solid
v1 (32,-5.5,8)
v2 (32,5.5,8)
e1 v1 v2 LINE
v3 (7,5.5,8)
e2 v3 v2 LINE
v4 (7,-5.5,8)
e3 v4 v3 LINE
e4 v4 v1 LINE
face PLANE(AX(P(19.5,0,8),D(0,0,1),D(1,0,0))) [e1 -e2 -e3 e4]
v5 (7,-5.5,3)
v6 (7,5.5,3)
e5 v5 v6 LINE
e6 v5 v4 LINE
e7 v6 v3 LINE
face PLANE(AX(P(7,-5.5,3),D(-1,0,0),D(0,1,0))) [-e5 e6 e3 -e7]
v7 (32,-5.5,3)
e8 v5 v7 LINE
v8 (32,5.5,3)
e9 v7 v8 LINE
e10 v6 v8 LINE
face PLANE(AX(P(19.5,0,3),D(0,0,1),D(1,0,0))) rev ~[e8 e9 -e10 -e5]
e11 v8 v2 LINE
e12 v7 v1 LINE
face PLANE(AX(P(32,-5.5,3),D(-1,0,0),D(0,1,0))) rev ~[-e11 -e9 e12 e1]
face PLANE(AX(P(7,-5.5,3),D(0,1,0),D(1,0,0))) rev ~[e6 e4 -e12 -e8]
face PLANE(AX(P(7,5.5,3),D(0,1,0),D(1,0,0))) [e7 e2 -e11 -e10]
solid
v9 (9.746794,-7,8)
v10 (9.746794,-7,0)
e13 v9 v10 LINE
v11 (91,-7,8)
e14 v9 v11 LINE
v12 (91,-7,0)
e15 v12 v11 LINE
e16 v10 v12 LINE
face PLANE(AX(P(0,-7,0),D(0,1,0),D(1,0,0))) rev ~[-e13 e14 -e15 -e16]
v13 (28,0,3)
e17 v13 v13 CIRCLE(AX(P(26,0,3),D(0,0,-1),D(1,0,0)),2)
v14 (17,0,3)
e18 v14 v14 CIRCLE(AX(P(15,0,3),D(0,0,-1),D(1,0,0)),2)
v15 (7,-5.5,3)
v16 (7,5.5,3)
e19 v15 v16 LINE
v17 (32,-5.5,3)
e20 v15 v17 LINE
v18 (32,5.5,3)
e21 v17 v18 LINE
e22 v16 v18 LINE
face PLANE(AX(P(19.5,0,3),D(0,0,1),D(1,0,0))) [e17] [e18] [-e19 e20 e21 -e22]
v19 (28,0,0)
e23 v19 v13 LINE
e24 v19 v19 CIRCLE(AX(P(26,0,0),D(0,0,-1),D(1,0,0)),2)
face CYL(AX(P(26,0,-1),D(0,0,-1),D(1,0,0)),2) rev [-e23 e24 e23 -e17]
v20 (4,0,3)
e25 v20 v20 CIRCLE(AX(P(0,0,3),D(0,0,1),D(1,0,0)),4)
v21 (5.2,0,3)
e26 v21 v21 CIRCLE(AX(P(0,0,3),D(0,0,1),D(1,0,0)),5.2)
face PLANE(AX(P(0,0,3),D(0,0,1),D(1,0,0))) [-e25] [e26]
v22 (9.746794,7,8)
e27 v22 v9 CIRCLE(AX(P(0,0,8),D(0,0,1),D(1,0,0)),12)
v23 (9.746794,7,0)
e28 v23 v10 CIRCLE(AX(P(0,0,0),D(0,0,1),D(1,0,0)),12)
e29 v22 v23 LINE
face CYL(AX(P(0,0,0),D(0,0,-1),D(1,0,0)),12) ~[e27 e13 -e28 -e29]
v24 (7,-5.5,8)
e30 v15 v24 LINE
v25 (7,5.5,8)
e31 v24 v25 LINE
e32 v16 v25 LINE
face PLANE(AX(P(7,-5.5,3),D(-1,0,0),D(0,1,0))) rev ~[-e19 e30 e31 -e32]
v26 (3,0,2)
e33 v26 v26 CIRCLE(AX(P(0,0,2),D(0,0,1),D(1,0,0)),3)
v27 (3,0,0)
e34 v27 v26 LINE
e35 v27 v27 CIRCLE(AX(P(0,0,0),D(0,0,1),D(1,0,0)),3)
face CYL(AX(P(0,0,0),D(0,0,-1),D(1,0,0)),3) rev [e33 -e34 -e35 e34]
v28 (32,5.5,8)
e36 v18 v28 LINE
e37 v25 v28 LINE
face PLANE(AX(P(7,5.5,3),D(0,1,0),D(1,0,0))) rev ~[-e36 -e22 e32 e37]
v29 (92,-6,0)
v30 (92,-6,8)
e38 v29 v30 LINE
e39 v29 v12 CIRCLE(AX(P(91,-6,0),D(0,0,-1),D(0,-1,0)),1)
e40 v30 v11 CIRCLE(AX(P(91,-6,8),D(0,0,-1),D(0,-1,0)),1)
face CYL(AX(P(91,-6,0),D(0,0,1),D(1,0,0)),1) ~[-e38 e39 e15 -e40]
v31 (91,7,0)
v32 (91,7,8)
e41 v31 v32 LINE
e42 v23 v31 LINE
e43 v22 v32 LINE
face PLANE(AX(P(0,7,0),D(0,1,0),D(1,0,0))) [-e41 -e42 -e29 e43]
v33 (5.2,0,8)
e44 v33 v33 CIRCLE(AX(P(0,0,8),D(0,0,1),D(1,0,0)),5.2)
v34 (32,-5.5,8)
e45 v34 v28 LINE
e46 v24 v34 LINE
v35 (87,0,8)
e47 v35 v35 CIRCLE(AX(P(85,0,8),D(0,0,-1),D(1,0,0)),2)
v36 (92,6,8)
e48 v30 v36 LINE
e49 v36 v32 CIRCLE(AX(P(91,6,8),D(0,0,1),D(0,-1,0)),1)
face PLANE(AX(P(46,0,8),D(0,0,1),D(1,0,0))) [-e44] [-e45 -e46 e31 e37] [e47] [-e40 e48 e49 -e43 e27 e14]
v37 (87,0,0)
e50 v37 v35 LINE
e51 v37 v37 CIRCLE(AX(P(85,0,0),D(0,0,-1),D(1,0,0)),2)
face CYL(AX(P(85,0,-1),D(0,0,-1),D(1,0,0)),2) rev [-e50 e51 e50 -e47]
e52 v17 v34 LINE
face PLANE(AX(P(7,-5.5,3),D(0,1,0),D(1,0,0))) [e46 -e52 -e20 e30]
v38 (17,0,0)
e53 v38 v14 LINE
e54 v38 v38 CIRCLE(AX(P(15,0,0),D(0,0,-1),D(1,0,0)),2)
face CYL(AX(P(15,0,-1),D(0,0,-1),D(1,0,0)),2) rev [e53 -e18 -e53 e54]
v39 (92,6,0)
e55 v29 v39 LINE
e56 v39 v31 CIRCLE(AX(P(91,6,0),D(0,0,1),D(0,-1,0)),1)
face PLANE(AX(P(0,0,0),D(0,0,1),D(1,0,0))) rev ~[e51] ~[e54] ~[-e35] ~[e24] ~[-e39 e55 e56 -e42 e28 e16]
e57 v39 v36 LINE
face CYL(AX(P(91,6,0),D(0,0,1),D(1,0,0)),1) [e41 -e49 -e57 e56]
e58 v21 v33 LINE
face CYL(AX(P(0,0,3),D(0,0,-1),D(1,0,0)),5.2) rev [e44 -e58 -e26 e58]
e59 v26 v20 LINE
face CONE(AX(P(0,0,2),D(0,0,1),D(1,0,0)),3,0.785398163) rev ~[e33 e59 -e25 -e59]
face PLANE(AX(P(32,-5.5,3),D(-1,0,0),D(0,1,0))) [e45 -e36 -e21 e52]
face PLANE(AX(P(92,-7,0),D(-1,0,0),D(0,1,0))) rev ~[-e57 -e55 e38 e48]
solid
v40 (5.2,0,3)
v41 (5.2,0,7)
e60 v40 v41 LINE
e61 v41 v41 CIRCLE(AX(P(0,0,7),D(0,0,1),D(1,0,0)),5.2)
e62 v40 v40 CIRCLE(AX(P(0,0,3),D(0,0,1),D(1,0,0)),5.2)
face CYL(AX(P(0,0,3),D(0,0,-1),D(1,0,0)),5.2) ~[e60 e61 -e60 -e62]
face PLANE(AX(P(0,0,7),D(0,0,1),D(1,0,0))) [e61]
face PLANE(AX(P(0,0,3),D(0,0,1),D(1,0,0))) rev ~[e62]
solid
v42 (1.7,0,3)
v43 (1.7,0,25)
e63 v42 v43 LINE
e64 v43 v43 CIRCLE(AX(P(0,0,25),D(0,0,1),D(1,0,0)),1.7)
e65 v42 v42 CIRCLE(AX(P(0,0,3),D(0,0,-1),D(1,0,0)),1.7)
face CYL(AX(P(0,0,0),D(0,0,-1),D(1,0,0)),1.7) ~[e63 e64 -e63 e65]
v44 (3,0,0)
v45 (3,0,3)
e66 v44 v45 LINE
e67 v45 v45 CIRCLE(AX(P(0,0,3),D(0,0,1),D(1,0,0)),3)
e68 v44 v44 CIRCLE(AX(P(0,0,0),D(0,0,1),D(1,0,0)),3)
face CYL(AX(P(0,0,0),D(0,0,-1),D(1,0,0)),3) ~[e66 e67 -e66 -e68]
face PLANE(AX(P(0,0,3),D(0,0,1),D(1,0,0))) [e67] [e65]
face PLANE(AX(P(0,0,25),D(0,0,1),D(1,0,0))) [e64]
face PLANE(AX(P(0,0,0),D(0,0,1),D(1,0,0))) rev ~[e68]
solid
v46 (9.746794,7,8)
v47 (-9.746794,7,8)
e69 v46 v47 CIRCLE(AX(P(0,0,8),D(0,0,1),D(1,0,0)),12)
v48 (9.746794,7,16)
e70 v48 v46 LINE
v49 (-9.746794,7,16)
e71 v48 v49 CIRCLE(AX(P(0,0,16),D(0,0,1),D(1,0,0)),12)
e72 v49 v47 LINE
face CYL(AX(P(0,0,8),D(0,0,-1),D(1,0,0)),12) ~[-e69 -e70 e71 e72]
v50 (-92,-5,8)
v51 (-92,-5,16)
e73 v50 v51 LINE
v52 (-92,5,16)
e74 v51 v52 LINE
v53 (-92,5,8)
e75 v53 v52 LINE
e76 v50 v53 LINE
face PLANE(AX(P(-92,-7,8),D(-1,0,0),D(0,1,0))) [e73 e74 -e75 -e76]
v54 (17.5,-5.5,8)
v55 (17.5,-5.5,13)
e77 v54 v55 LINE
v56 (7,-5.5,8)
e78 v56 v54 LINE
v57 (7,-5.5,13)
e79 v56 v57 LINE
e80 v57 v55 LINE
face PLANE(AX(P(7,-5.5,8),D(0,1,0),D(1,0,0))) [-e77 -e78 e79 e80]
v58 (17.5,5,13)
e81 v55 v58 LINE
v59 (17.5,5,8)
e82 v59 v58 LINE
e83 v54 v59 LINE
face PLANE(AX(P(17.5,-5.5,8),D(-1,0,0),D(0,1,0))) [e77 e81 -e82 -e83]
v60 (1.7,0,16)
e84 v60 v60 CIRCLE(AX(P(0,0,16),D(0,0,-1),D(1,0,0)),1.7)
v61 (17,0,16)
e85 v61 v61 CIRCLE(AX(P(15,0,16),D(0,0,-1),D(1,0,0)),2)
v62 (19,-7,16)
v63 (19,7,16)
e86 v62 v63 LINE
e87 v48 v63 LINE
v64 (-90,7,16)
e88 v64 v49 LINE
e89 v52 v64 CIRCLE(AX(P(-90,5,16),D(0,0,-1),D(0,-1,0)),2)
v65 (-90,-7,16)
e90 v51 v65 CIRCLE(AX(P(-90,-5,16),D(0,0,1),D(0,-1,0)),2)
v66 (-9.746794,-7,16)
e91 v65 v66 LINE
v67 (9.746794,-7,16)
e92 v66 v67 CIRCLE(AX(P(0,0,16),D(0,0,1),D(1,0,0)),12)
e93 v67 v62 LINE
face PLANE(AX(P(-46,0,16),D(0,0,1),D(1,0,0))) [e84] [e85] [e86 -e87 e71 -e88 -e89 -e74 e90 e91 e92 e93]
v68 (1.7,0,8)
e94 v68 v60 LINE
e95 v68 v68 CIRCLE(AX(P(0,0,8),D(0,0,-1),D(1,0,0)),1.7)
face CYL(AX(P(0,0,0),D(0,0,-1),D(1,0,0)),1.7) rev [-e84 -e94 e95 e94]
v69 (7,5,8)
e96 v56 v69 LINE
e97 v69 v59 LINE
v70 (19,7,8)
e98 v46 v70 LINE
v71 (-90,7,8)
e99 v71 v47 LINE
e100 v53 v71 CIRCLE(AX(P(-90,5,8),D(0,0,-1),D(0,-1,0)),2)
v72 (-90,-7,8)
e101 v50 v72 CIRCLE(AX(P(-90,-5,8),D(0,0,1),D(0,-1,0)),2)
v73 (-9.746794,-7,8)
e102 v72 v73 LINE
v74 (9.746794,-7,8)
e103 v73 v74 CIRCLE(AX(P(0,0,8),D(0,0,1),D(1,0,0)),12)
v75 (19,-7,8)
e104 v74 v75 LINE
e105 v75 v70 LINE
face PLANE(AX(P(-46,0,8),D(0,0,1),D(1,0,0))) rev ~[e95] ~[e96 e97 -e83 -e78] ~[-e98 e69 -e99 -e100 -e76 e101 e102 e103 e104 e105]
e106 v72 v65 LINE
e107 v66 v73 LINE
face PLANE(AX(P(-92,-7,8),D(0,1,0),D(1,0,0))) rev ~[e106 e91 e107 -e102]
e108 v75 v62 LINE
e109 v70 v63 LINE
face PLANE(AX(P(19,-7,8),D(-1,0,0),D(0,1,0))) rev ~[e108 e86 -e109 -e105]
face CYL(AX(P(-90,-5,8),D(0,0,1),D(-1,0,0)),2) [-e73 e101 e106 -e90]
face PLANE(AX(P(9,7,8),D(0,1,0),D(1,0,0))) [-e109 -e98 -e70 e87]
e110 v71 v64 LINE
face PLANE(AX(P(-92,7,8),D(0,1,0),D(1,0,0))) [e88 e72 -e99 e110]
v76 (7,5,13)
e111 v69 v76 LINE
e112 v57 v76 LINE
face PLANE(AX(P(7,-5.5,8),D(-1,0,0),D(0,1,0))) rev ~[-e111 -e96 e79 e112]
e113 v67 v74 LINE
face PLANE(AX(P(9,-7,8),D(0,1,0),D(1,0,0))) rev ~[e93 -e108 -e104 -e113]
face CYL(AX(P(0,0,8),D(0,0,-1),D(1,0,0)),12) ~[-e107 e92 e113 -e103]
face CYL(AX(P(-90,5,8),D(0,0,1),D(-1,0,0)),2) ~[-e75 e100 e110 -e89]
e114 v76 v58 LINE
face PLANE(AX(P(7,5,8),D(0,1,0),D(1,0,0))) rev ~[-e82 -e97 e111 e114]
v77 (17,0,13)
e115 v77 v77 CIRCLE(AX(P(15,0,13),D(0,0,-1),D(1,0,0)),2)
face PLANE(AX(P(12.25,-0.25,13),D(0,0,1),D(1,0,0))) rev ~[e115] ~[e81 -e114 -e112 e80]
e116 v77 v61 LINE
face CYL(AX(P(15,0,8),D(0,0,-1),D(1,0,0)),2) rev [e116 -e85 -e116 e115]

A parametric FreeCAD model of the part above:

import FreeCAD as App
import Part
import Sketcher
Q = App.Units.Quantity


def edges_at(feature, points):
    """Names of the edges that pass closest to the given points."""
    edges = feature.Shape.Edges
    near = lambda p: min(range(len(edges)), key=lambda i: edges[i].distToShape(Part.Vertex(*p))[0])
    return sorted({f"Edge{near(p) + 1}" for p in points})

doc = App.newDocument("Part")
body = doc.addObject("PartDesign::Body", "Body")

# Sketch on XY plane
sketch1 = body.newObject("Sketcher::SketchObject", "Sketch")
sketch1.AttachmentSupport = (doc.getObject("XY_Plane"), [""])
sketch1.MapMode = "FlatFace"
sketch1.AttachmentOffset = App.Placement(App.Vector(0, 0, 3), App.Rotation())
sketch1.addGeometry(Part.LineSegment(App.Vector(7, 6, 0), App.Vector(7, -6, 0)), False)
sketch1.addGeometry(Part.LineSegment(App.Vector(7, -6, 0), App.Vector(32, -6, 0)), False)
sketch1.addGeometry(Part.LineSegment(App.Vector(32, -6, 0), App.Vector(32, 6, 0)), False)
sketch1.addGeometry(Part.LineSegment(App.Vector(32, 6, 0), App.Vector(7, 6, 0)), False)
sketch1.addConstraint(Sketcher.Constraint("Coincident", 0, 2, 1, 1))
sketch1.addConstraint(Sketcher.Constraint("Coincident", 1, 2, 2, 1))
sketch1.addConstraint(Sketcher.Constraint("Coincident", 2, 2, 3, 1))
sketch1.addConstraint(Sketcher.Constraint("Coincident", 3, 2, 0, 1))
sketch1.addConstraint(Sketcher.Constraint("Vertical", 0))
sketch1.addConstraint(Sketcher.Constraint("Horizontal", 1))
sketch1.addConstraint(Sketcher.Constraint("Vertical", 2))
sketch1.addConstraint(Sketcher.Constraint("Horizontal", 3))
sketch1.addConstraint(Sketcher.Constraint("DistanceX", 1, 1, 1, 2, Q("25 mm")))
sketch1.addConstraint(Sketcher.Constraint("DistanceY", 0, 2, 0, 1, Q("11 mm")))
sketch1.addConstraint(Sketcher.Constraint("DistanceX", -1, 1, 0, 2, Q("7 mm")))
sketch1.addConstraint(Sketcher.Constraint("DistanceY", 0, 2, -1, 1, Q("5.5 mm")))
pad1 = body.newObject("PartDesign::Pad", "Pad")
pad1.Profile = sketch1
pad1.Length = 5
body2 = doc.addObject("PartDesign::Body", "Body001")

# Sketch on XY plane
sketch2 = body2.newObject("Sketcher::SketchObject", "Sketch001")
sketch2.AttachmentSupport = (doc.getObject("XY_Plane001"), [""])
sketch2.MapMode = "FlatFace"
sketch2.AttachmentOffset = App.Placement(App.Vector(0, 0, 3), App.Rotation())
sketch2.addGeometry(Part.Circle(App.Vector(0, 0, 0), App.Vector(0, 0, 1), 5), False)
sketch2.addConstraint(Sketcher.Constraint("Coincident", 0, 3, -1, 1))
sketch2.addConstraint(Sketcher.Constraint("Diameter", 0, Q("10.4 mm")))
pad2 = body2.newObject("PartDesign::Pad", "Pad001")
pad2.Profile = sketch2
pad2.Length = 4
body3 = doc.addObject("PartDesign::Body", "Body002")

# Sketch on XY plane
sketch3 = body3.newObject("Sketcher::SketchObject", "Sketch002")
sketch3.AttachmentSupport = (doc.getObject("XY_Plane002"), [""])
sketch3.MapMode = "FlatFace"
sketch3.addGeometry(Part.Circle(App.Vector(0, 0, 0), App.Vector(0, 0, 1), 3), False)
sketch3.addConstraint(Sketcher.Constraint("Coincident", 0, 3, -1, 1))
sketch3.addConstraint(Sketcher.Constraint("Diameter", 0, Q("6 mm")))
pad3 = body3.newObject("PartDesign::Pad", "Pad002")
pad3.Profile = sketch3
pad3.Length = 3
body4 = doc.addObject("PartDesign::Body", "Body003")

# Sketch on XY plane
sketch4 = body4.newObject("Sketcher::SketchObject", "Sketch003")
sketch4.AttachmentSupport = (doc.getObject("XY_Plane003"), [""])
sketch4.MapMode = "FlatFace"
sketch4.addGeometry(Part.Circle(App.Vector(0, 0, 0), App.Vector(0, 0, 1), 1.7), False)
sketch4.addConstraint(Sketcher.Constraint("Coincident", 0, 3, -1, 1))
sketch4.addConstraint(Sketcher.Constraint("Diameter", 0, Q("3.4 mm")))
pad4 = body4.newObject("PartDesign::Pad", "Pad003")
pad4.Profile = sketch4
pad4.Length = 25
doc.recompute()

boolean = body4.newObject("PartDesign::Boolean", "Boolean")
boolean.Type = "Fuse"
boolean.addObjects([body3])
body5 = doc.addObject("PartDesign::Body", "Body004")

# Sketch on XY plane
sketch5 = body5.newObject("Sketcher::SketchObject", "Sketch004")
sketch5.AttachmentSupport = (doc.getObject("XY_Plane004"), [""])
sketch5.MapMode = "FlatFace"
sketch5.AttachmentOffset = App.Placement(App.Vector(0, 0, -1), App.Rotation())
sketch5.addGeometry(Part.Circle(App.Vector(85, 0, 0), App.Vector(0, 0, 1), 2), False)
sketch5.addConstraint(Sketcher.Constraint("PointOnObject", 0, 3, -1))
sketch5.addConstraint(Sketcher.Constraint("Diameter", 0, Q("4 mm")))
sketch5.addConstraint(Sketcher.Constraint("DistanceX", -1, 1, 0, 3, Q("85 mm")))
pad5 = body5.newObject("PartDesign::Pad", "Pad004")
pad5.Profile = sketch5
pad5.Length = 10
body6 = doc.addObject("PartDesign::Body", "Body005")

# Sketch on XY plane
sketch6 = body6.newObject("Sketcher::SketchObject", "Sketch005")
sketch6.AttachmentSupport = (doc.getObject("XY_Plane005"), [""])
sketch6.MapMode = "FlatFace"
sketch6.addGeometry(Part.Circle(App.Vector(0, 0, 0), App.Vector(0, 0, 1), 3), False)
sketch6.addConstraint(Sketcher.Constraint("Coincident", 0, 3, -1, 1))
sketch6.addConstraint(Sketcher.Constraint("Diameter", 0, Q("6 mm")))
pad6 = body6.newObject("PartDesign::Pad", "Pad005")
pad6.Profile = sketch6
pad6.Length = 3
body7 = doc.addObject("PartDesign::Body", "Body006")

# Sketch on XY plane
sketch7 = body7.newObject("Sketcher::SketchObject", "Sketch006")
sketch7.AttachmentSupport = (doc.getObject("XY_Plane006"), [""])
sketch7.MapMode = "FlatFace"
sketch7.addGeometry(Part.Circle(App.Vector(0, 0, 0), App.Vector(0, 0, 1), 1.7), False)
sketch7.addConstraint(Sketcher.Constraint("Coincident", 0, 3, -1, 1))
sketch7.addConstraint(Sketcher.Constraint("Diameter", 0, Q("3.4 mm")))
pad7 = body7.newObject("PartDesign::Pad", "Pad006")
pad7.Profile = sketch7
pad7.Length = 25
doc.recompute()

boolean2 = body7.newObject("PartDesign::Boolean", "Boolean001")
boolean2.Type = "Fuse"
boolean2.addObjects([body6])
body8 = doc.addObject("PartDesign::Body", "Body007")

# Sketch on XY plane
sketch8 = body8.newObject("Sketcher::SketchObject", "Sketch007")
sketch8.AttachmentSupport = (doc.getObject("XY_Plane007"), [""])
sketch8.MapMode = "FlatFace"
sketch8.AttachmentOffset = App.Placement(App.Vector(0, 0, 3), App.Rotation())
sketch8.addGeometry(Part.Circle(App.Vector(0, 0, 0), App.Vector(0, 0, 1), 5), False)
sketch8.addConstraint(Sketcher.Constraint("Coincident", 0, 3, -1, 1))
sketch8.addConstraint(Sketcher.Constraint("Diameter", 0, Q("10.4 mm")))
pad8 = body8.newObject("PartDesign::Pad", "Pad007")
pad8.Profile = sketch8
pad8.Length = 5
doc.recompute()

boolean3 = body8.newObject("PartDesign::Boolean", "Boolean002")
boolean3.Type = "Fuse"
boolean3.addObjects([body7])
body9 = doc.addObject("PartDesign::Body", "Body008")

# Sketch on XY plane
sketch9 = body9.newObject("Sketcher::SketchObject", "Sketch008")
sketch9.AttachmentSupport = (doc.getObject("XY_Plane008"), [""])
sketch9.MapMode = "FlatFace"
sketch9.AttachmentOffset = App.Placement(App.Vector(0, 0, -1), App.Rotation())
sketch9.addGeometry(Part.Circle(App.Vector(26, 0, 0), App.Vector(0, 0, 1), 2), False)
sketch9.addConstraint(Sketcher.Constraint("PointOnObject", 0, 3, -1))
sketch9.addConstraint(Sketcher.Constraint("Diameter", 0, Q("4 mm")))
sketch9.addConstraint(Sketcher.Constraint("DistanceX", -1, 1, 0, 3, Q("26 mm")))
pad9 = body9.newObject("PartDesign::Pad", "Pad008")
pad9.Profile = sketch9
pad9.Length = 10
body10 = doc.addObject("PartDesign::Body", "Body009")
body10.AllowCompound = True

# Sketch on XY plane
sketch10 = body10.newObject("Sketcher::SketchObject", "Sketch009")
sketch10.AttachmentSupport = (doc.getObject("XY_Plane009"), [""])
sketch10.MapMode = "FlatFace"
sketch10.AttachmentOffset = App.Placement(App.Vector(0, 0, -1), App.Rotation())
sketch10.addGeometry(Part.Circle(App.Vector(15, 0, 0), App.Vector(0, 0, 1), 2), False)
sketch10.addConstraint(Sketcher.Constraint("PointOnObject", 0, 3, -1))
sketch10.addConstraint(Sketcher.Constraint("Diameter", 0, Q("4 mm")))
sketch10.addConstraint(Sketcher.Constraint("DistanceX", -1, 1, 0, 3, Q("15 mm")))
pad10 = body10.newObject("PartDesign::Pad", "Pad009")
pad10.Profile = sketch10
pad10.Length = 10
doc.recompute()

boolean4 = body10.newObject("PartDesign::Boolean", "Boolean003")
boolean4.Type = "Fuse"
boolean4.addObjects([body9])
body11 = doc.addObject("PartDesign::Body", "Body010")

# Sketch on XY plane
sketch11 = body11.newObject("Sketcher::SketchObject", "Sketch010")
sketch11.AttachmentSupport = (doc.getObject("XY_Plane010"), [""])
sketch11.MapMode = "FlatFace"
sketch11.AttachmentOffset = App.Placement(App.Vector(0, 0, 3), App.Rotation())
sketch11.addGeometry(Part.LineSegment(App.Vector(7, 6, 0), App.Vector(7, -6, 0)), False)
sketch11.addGeometry(Part.LineSegment(App.Vector(7, -6, 0), App.Vector(32, -6, 0)), False)
sketch11.addGeometry(Part.LineSegment(App.Vector(32, -6, 0), App.Vector(32, 6, 0)), False)
sketch11.addGeometry(Part.LineSegment(App.Vector(32, 6, 0), App.Vector(7, 6, 0)), False)
sketch11.addConstraint(Sketcher.Constraint("Coincident", 0, 2, 1, 1))
sketch11.addConstraint(Sketcher.Constraint("Coincident", 1, 2, 2, 1))
sketch11.addConstraint(Sketcher.Constraint("Coincident", 2, 2, 3, 1))
sketch11.addConstraint(Sketcher.Constraint("Coincident", 3, 2, 0, 1))
sketch11.addConstraint(Sketcher.Constraint("Vertical", 0))
sketch11.addConstraint(Sketcher.Constraint("Horizontal", 1))
sketch11.addConstraint(Sketcher.Constraint("Vertical", 2))
sketch11.addConstraint(Sketcher.Constraint("Horizontal", 3))
sketch11.addConstraint(Sketcher.Constraint("DistanceX", 1, 1, 1, 2, Q("25 mm")))
sketch11.addConstraint(Sketcher.Constraint("DistanceY", 0, 2, 0, 1, Q("11 mm")))
sketch11.addConstraint(Sketcher.Constraint("DistanceX", -1, 1, 0, 2, Q("7 mm")))
sketch11.addConstraint(Sketcher.Constraint("DistanceY", 0, 2, -1, 1, Q("5.5 mm")))
pad11 = body11.newObject("PartDesign::Pad", "Pad010")
pad11.Profile = sketch11
pad11.Length = 5
body12 = doc.addObject("PartDesign::Body", "Body011")

# Sketch on XY plane
sketch12 = body12.newObject("Sketcher::SketchObject", "Sketch011")
sketch12.AttachmentSupport = (doc.getObject("XY_Plane011"), [""])
sketch12.MapMode = "FlatFace"
sketch12.addGeometry(Part.LineSegment(App.Vector(0, 7, 0), App.Vector(0, -7, 0)), False)
sketch12.addGeometry(Part.LineSegment(App.Vector(0, -7, 0), App.Vector(92, -7, 0)), False)
sketch12.addGeometry(Part.LineSegment(App.Vector(92, -7, 0), App.Vector(92, 7, 0)), False)
sketch12.addGeometry(Part.LineSegment(App.Vector(92, 7, 0), App.Vector(0, 7, 0)), False)
sketch12.addConstraint(Sketcher.Constraint("Coincident", 0, 2, 1, 1))
sketch12.addConstraint(Sketcher.Constraint("Coincident", 1, 2, 2, 1))
sketch12.addConstraint(Sketcher.Constraint("Coincident", 2, 2, 3, 1))
sketch12.addConstraint(Sketcher.Constraint("Coincident", 3, 2, 0, 1))
sketch12.addConstraint(Sketcher.Constraint("Vertical", 0))
sketch12.addConstraint(Sketcher.Constraint("Horizontal", 1))
sketch12.addConstraint(Sketcher.Constraint("Vertical", 2))
sketch12.addConstraint(Sketcher.Constraint("Horizontal", 3))
sketch12.addConstraint(Sketcher.Constraint("Symmetric", 0, 2, 3, 2, -1, 1))
sketch12.addConstraint(Sketcher.Constraint("DistanceX", 1, 1, 1, 2, Q("92 mm")))
sketch12.addConstraint(Sketcher.Constraint("DistanceY", 0, 2, 0, 1, Q("14 mm")))
pad12 = body12.newObject("PartDesign::Pad", "Pad011")
pad12.Profile = sketch12
pad12.Length = 8
body13 = doc.addObject("PartDesign::Body", "Body012")

# Sketch on XY plane
sketch13 = body13.newObject("Sketcher::SketchObject", "Sketch012")
sketch13.AttachmentSupport = (doc.getObject("XY_Plane012"), [""])
sketch13.MapMode = "FlatFace"
sketch13.addGeometry(Part.Circle(App.Vector(0, 0, 0), App.Vector(0, 0, 1), 12), False)
sketch13.addConstraint(Sketcher.Constraint("Coincident", 0, 3, -1, 1))
sketch13.addConstraint(Sketcher.Constraint("Diameter", 0, Q("24 mm")))
pad13 = body13.newObject("PartDesign::Pad", "Pad012")
pad13.Profile = sketch13
pad13.Length = 8
doc.recompute()

boolean5 = body13.newObject("PartDesign::Boolean", "Boolean004")
boolean5.Type = "Fuse"
boolean5.addObjects([body12])
doc.recompute()

boolean6 = body13.newObject("PartDesign::Boolean", "Boolean005")
boolean6.Type = "Cut"
boolean6.addObjects([body11])
doc.recompute()

boolean7 = body13.newObject("PartDesign::Boolean", "Boolean006")
boolean7.Type = "Cut"
boolean7.addObjects([body10])
doc.recompute()

boolean8 = body13.newObject("PartDesign::Boolean", "Boolean007")
boolean8.Type = "Cut"
boolean8.addObjects([body8])
doc.recompute()

boolean9 = body13.newObject("PartDesign::Boolean", "Boolean008")
boolean9.Type = "Cut"
boolean9.addObjects([body5])
doc.recompute()

chamfer = body13.newObject("PartDesign::Chamfer", "Chamfer")
chamfer.Base = (boolean9, edges_at(boolean9, [(-3, 0, 3)]))
chamfer.Size = 1
doc.recompute()

fillet = body13.newObject("PartDesign::Fillet", "Fillet")
fillet.Base = (chamfer, edges_at(chamfer, [(92, 7, 4)]))
fillet.Radius = 1
doc.recompute()

fillet2 = body13.newObject("PartDesign::Fillet", "Fillet001")
fillet2.Base = (fillet, edges_at(fillet, [(92, -7, 4)]))
fillet2.Radius = 1
body14 = doc.addObject("PartDesign::Body", "Body013")

# Sketch on XY plane
sketch14 = body14.newObject("Sketcher::SketchObject", "Sketch013")
sketch14.AttachmentSupport = (doc.getObject("XY_Plane013"), [""])
sketch14.MapMode = "FlatFace"
sketch14.AttachmentOffset = App.Placement(App.Vector(0, 0, 8), App.Rotation())
sketch14.addGeometry(Part.Circle(App.Vector(15, 0, 0), App.Vector(0, 0, 1), 2), False)
sketch14.addConstraint(Sketcher.Constraint("PointOnObject", 0, 3, -1))
sketch14.addConstraint(Sketcher.Constraint("Diameter", 0, Q("4 mm")))
sketch14.addConstraint(Sketcher.Constraint("DistanceX", -1, 1, 0, 3, Q("15 mm")))
pad14 = body14.newObject("PartDesign::Pad", "Pad013")
pad14.Profile = sketch14
pad14.Length = 10
body15 = doc.addObject("PartDesign::Body", "Body014")

# Sketch on XY plane
sketch15 = body15.newObject("Sketcher::SketchObject", "Sketch014")
sketch15.AttachmentSupport = (doc.getObject("XY_Plane014"), [""])
sketch15.MapMode = "FlatFace"
sketch15.AttachmentOffset = App.Placement(App.Vector(0, 0, 8), App.Rotation())
sketch15.addGeometry(Part.LineSegment(App.Vector(7, 5, 0), App.Vector(7, -6, 0)), False)
sketch15.addGeometry(Part.LineSegment(App.Vector(7, -6, 0), App.Vector(18, -6, 0)), False)
sketch15.addGeometry(Part.LineSegment(App.Vector(18, -6, 0), App.Vector(18, 5, 0)), False)
sketch15.addGeometry(Part.LineSegment(App.Vector(18, 5, 0), App.Vector(7, 5, 0)), False)
sketch15.addConstraint(Sketcher.Constraint("Coincident", 0, 2, 1, 1))
sketch15.addConstraint(Sketcher.Constraint("Coincident", 1, 2, 2, 1))
sketch15.addConstraint(Sketcher.Constraint("Coincident", 2, 2, 3, 1))
sketch15.addConstraint(Sketcher.Constraint("Coincident", 3, 2, 0, 1))
sketch15.addConstraint(Sketcher.Constraint("Vertical", 0))
sketch15.addConstraint(Sketcher.Constraint("Horizontal", 1))
sketch15.addConstraint(Sketcher.Constraint("Vertical", 2))
sketch15.addConstraint(Sketcher.Constraint("Horizontal", 3))
sketch15.addConstraint(Sketcher.Constraint("Equal", 3, 0))
sketch15.addConstraint(Sketcher.Constraint("DistanceX", 1, 1, 1, 2, Q("10.5 mm")))
sketch15.addConstraint(Sketcher.Constraint("DistanceX", -1, 1, 0, 2, Q("7 mm")))
sketch15.addConstraint(Sketcher.Constraint("DistanceY", -1, 1, 2, 2, Q("5 mm")))
pad15 = body15.newObject("PartDesign::Pad", "Pad014")
pad15.Profile = sketch15
pad15.Length = 5
body16 = doc.addObject("PartDesign::Body", "Body015")

# Sketch on XY plane
sketch16 = body16.newObject("Sketcher::SketchObject", "Sketch015")
sketch16.AttachmentSupport = (doc.getObject("XY_Plane015"), [""])
sketch16.MapMode = "FlatFace"
sketch16.addGeometry(Part.Circle(App.Vector(0, 0, 0), App.Vector(0, 0, 1), 3), False)
sketch16.addConstraint(Sketcher.Constraint("Coincident", 0, 3, -1, 1))
sketch16.addConstraint(Sketcher.Constraint("Diameter", 0, Q("6 mm")))
pad16 = body16.newObject("PartDesign::Pad", "Pad015")
pad16.Profile = sketch16
pad16.Length = 3
body17 = doc.addObject("PartDesign::Body", "Body016")

# Sketch on XY plane
sketch17 = body17.newObject("Sketcher::SketchObject", "Sketch016")
sketch17.AttachmentSupport = (doc.getObject("XY_Plane016"), [""])
sketch17.MapMode = "FlatFace"
sketch17.addGeometry(Part.Circle(App.Vector(0, 0, 0), App.Vector(0, 0, 1), 1.7), False)
sketch17.addConstraint(Sketcher.Constraint("Coincident", 0, 3, -1, 1))
sketch17.addConstraint(Sketcher.Constraint("Diameter", 0, Q("3.4 mm")))
pad17 = body17.newObject("PartDesign::Pad", "Pad016")
pad17.Profile = sketch17
pad17.Length = 25
doc.recompute()

boolean10 = body17.newObject("PartDesign::Boolean", "Boolean009")
boolean10.Type = "Fuse"
boolean10.addObjects([body16])
body18 = doc.addObject("PartDesign::Body", "Body017")

# Sketch on XY plane
sketch18 = body18.newObject("Sketcher::SketchObject", "Sketch017")
sketch18.AttachmentSupport = (doc.getObject("XY_Plane017"), [""])
sketch18.MapMode = "FlatFace"
sketch18.AttachmentOffset = App.Placement(App.Vector(0, 0, 8), App.Rotation())
sketch18.addGeometry(Part.Circle(App.Vector(0, 0, 0), App.Vector(0, 0, 1), 12), False)
sketch18.addConstraint(Sketcher.Constraint("Coincident", 0, 3, -1, 1))
sketch18.addConstraint(Sketcher.Constraint("Diameter", 0, Q("24 mm")))
pad18 = body18.newObject("PartDesign::Pad", "Pad017")
pad18.Profile = sketch18
pad18.Length = 8
body19 = doc.addObject("PartDesign::Body", "Body018")

# Sketch on XY plane
sketch19 = body19.newObject("Sketcher::SketchObject", "Sketch018")
sketch19.AttachmentSupport = (doc.getObject("XY_Plane018"), [""])
sketch19.MapMode = "FlatFace"
sketch19.AttachmentOffset = App.Placement(App.Vector(0, 0, 8), App.Rotation())
sketch19.addGeometry(Part.LineSegment(App.Vector(-92, 7, 0), App.Vector(-92, -7, 0)), False)
sketch19.addGeometry(Part.LineSegment(App.Vector(-92, -7, 0), App.Vector(0, -7, 0)), False)
sketch19.addGeometry(Part.LineSegment(App.Vector(0, -7, 0), App.Vector(0, 7, 0)), False)
sketch19.addGeometry(Part.LineSegment(App.Vector(0, 7, 0), App.Vector(-92, 7, 0)), False)
sketch19.addConstraint(Sketcher.Constraint("Coincident", 0, 2, 1, 1))
sketch19.addConstraint(Sketcher.Constraint("Coincident", 1, 2, 2, 1))
sketch19.addConstraint(Sketcher.Constraint("Coincident", 2, 2, 3, 1))
sketch19.addConstraint(Sketcher.Constraint("Coincident", 3, 2, 0, 1))
sketch19.addConstraint(Sketcher.Constraint("Vertical", 0))
sketch19.addConstraint(Sketcher.Constraint("Horizontal", 1))
sketch19.addConstraint(Sketcher.Constraint("Vertical", 2))
sketch19.addConstraint(Sketcher.Constraint("Horizontal", 3))
sketch19.addConstraint(Sketcher.Constraint("Symmetric", 1, 2, 2, 2, -1, 1))
sketch19.addConstraint(Sketcher.Constraint("DistanceX", 1, 1, 1, 2, Q("92 mm")))
sketch19.addConstraint(Sketcher.Constraint("DistanceY", 0, 2, 0, 1, Q("14 mm")))
pad19 = body19.newObject("PartDesign::Pad", "Pad018")
pad19.Profile = sketch19
pad19.Length = 8
body20 = doc.addObject("PartDesign::Body", "Body019")

# Sketch on XY plane
sketch20 = body20.newObject("Sketcher::SketchObject", "Sketch019")
sketch20.AttachmentSupport = (doc.getObject("XY_Plane019"), [""])
sketch20.MapMode = "FlatFace"
sketch20.AttachmentOffset = App.Placement(App.Vector(0, 0, 8), App.Rotation())
sketch20.addGeometry(Part.LineSegment(App.Vector(9, 7, 0), App.Vector(9, -7, 0)), False)
sketch20.addGeometry(Part.LineSegment(App.Vector(9, -7, 0), App.Vector(19, -7, 0)), False)
sketch20.addGeometry(Part.LineSegment(App.Vector(19, -7, 0), App.Vector(19, 7, 0)), False)
sketch20.addGeometry(Part.LineSegment(App.Vector(19, 7, 0), App.Vector(9, 7, 0)), False)
sketch20.addConstraint(Sketcher.Constraint("Coincident", 0, 2, 1, 1))
sketch20.addConstraint(Sketcher.Constraint("Coincident", 1, 2, 2, 1))
sketch20.addConstraint(Sketcher.Constraint("Coincident", 2, 2, 3, 1))
sketch20.addConstraint(Sketcher.Constraint("Coincident", 3, 2, 0, 1))
sketch20.addConstraint(Sketcher.Constraint("Vertical", 0))
sketch20.addConstraint(Sketcher.Constraint("Horizontal", 1))
sketch20.addConstraint(Sketcher.Constraint("Vertical", 2))
sketch20.addConstraint(Sketcher.Constraint("Horizontal", 3))
sketch20.addConstraint(Sketcher.Constraint("DistanceX", 1, 1, 1, 2, Q("10 mm")))
sketch20.addConstraint(Sketcher.Constraint("DistanceY", 0, 2, 0, 1, Q("14 mm")))
sketch20.addConstraint(Sketcher.Constraint("DistanceX", -1, 1, 0, 2, Q("9 mm")))
sketch20.addConstraint(Sketcher.Constraint("DistanceY", 0, 2, -1, 1, Q("7 mm")))
pad20 = body20.newObject("PartDesign::Pad", "Pad019")
pad20.Profile = sketch20
pad20.Length = 8
doc.recompute()

boolean11 = body20.newObject("PartDesign::Boolean", "Boolean010")
boolean11.Type = "Fuse"
boolean11.addObjects([body18])
doc.recompute()

boolean12 = body20.newObject("PartDesign::Boolean", "Boolean011")
boolean12.Type = "Fuse"
boolean12.addObjects([body19])
doc.recompute()

boolean13 = body20.newObject("PartDesign::Boolean", "Boolean012")
boolean13.Type = "Cut"
boolean13.addObjects([body17])
doc.recompute()

boolean14 = body20.newObject("PartDesign::Boolean", "Boolean013")
boolean14.Type = "Cut"
boolean14.addObjects([body15])
doc.recompute()

boolean15 = body20.newObject("PartDesign::Boolean", "Boolean014")
boolean15.Type = "Cut"
boolean15.addObjects([body14])
doc.recompute()

fillet3 = body20.newObject("PartDesign::Fillet", "Fillet002")
fillet3.Base = (boolean15, edges_at(boolean15, [(-92, 7, 12)]))
fillet3.Radius = 2
doc.recompute()

fillet4 = body20.newObject("PartDesign::Fillet", "Fillet003")
fillet4.Base = (fillet3, edges_at(fillet3, [(-92, -7, 12)]))
fillet4.Radius = 2

doc.recompute()
